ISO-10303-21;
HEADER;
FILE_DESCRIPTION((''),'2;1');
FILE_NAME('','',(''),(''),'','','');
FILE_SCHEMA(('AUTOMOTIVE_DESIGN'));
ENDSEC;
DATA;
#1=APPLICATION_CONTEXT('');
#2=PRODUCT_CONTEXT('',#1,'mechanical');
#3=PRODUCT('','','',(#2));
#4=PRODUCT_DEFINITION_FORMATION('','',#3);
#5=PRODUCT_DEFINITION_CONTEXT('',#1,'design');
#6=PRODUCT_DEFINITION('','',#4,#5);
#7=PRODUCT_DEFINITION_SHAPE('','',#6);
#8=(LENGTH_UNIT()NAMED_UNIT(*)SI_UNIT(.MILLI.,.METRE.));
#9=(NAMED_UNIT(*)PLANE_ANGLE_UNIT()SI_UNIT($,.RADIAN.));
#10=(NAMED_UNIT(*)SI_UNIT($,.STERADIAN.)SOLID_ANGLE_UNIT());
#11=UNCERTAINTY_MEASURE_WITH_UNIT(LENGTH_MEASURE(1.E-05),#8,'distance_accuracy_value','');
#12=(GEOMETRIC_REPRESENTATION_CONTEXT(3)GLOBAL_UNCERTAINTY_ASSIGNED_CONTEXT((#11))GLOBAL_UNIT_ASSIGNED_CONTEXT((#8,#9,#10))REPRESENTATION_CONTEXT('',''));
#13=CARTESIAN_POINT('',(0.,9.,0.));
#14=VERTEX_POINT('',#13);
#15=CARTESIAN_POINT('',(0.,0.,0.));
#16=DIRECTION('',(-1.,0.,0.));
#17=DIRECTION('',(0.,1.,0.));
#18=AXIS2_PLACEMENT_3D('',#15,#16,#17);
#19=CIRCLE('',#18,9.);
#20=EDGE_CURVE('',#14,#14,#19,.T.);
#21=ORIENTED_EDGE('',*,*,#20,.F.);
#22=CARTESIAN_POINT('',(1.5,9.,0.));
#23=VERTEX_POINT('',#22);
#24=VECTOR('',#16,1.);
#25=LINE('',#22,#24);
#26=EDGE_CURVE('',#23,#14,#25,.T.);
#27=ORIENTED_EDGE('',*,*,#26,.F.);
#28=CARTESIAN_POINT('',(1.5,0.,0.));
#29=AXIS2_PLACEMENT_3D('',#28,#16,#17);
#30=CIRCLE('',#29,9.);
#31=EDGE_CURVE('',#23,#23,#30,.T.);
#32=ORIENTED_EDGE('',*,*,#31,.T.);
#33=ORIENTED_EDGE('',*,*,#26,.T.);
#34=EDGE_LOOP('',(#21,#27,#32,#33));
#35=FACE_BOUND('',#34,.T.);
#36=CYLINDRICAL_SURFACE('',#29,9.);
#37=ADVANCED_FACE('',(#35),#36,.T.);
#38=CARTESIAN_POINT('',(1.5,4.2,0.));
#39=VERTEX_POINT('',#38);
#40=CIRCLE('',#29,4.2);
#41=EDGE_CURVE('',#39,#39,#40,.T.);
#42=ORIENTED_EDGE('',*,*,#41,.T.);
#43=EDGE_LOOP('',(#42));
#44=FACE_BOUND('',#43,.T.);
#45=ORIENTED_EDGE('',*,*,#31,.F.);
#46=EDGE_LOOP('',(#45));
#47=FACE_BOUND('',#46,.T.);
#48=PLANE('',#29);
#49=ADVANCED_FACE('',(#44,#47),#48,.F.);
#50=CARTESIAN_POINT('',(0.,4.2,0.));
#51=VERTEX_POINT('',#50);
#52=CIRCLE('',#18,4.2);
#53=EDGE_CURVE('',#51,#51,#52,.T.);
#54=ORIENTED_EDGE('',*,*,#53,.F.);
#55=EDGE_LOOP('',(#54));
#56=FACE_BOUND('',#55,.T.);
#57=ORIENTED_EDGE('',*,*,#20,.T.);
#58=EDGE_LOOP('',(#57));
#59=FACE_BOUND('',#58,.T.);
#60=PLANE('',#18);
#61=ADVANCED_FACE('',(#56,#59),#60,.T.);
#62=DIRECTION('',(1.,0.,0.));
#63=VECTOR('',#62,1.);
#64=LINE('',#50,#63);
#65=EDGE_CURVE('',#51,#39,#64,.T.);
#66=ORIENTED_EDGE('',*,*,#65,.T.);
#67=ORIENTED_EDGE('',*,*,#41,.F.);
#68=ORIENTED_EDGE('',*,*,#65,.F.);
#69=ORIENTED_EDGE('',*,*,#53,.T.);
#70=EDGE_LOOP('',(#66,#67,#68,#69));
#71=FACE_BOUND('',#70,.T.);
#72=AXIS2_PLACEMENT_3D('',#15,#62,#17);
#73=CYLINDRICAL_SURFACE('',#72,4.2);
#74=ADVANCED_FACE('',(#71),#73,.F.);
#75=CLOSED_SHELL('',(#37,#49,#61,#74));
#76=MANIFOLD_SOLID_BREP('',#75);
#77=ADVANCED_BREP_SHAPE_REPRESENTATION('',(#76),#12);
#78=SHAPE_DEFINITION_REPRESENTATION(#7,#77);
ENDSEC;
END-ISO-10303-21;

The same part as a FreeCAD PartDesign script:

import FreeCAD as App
import Part
import Sketcher
from FreeCAD import Vector


def add_polygon(sketch, points):
    """Adds a closed chain of lines whose ends are joined by coincident constraints."""
    first, n = sketch.GeometryCount, len(points)
    for a, b in zip(points, points[1:] + points[:1]):
        sketch.addGeometry(Part.LineSegment(App.Vector(*a, 0), App.Vector(*b, 0)), False)
    for i in range(n):
        sketch.addConstraint(Sketcher.Constraint("Coincident", first + i, 2, first + (i + 1) % n, 1))

doc = App.newDocument("Part")
params = doc.addObject("Spreadsheet::Sheet", "Params")
for row, (alias, value) in enumerate([
    ("sketch1_width", "1.5 mm"),
    ("sketch1_height", "4.8 mm"),
    ("revolution_angle", "360 deg"),
], start=1):
    params.set(f"A{row}", alias)
    params.set(f"B{row}", "=" + value)
    params.setAlias(f"B{row}", alias)

body = doc.addObject("PartDesign::Body", "Body")

sketch1 = doc.addObject("Sketcher::SketchObject", "Sketch")
body.addObject(sketch1)
sketch1.AttachmentSupport = (doc.XY_Plane, [""])
sketch1.MapMode = "FlatFace"
add_polygon(sketch1, [(0, 9), (0, 4.2), (1.5, 4.2), (1.5, 9)])
sketch1.addConstraint(Sketcher.Constraint("Vertical", 0))
sketch1.addConstraint(Sketcher.Constraint("Horizontal", 1))
sketch1.addConstraint(Sketcher.Constraint("Vertical", 2))
sketch1.addConstraint(Sketcher.Constraint("Horizontal", 3))
sketch1.addConstraint(Sketcher.Constraint("PointOnObject", 0, 2, -2))
sketch1.addConstraint(Sketcher.Constraint("DistanceX", 1, 1, 1, 2, 1.5))
sketch1.addConstraint(Sketcher.Constraint("DistanceY", 0, 2, 0, 1, 4.8))
sketch1.addConstraint(Sketcher.Constraint("DistanceY", -1, 1, 2, 2, 9.0))
sketch1.setExpression("Constraints[9]", "Params.sketch1_width")
sketch1.setExpression("Constraints[10]", "Params.sketch1_height")
revolution = doc.addObject("PartDesign::Revolution", "Revolution")
body.addObject(revolution)
revolution.Profile = sketch1
revolution.ReferenceAxis = (sketch1, ["H_Axis"])
revolution.setExpression("Angle", "Params.revolution_angle")

doc.recompute()
